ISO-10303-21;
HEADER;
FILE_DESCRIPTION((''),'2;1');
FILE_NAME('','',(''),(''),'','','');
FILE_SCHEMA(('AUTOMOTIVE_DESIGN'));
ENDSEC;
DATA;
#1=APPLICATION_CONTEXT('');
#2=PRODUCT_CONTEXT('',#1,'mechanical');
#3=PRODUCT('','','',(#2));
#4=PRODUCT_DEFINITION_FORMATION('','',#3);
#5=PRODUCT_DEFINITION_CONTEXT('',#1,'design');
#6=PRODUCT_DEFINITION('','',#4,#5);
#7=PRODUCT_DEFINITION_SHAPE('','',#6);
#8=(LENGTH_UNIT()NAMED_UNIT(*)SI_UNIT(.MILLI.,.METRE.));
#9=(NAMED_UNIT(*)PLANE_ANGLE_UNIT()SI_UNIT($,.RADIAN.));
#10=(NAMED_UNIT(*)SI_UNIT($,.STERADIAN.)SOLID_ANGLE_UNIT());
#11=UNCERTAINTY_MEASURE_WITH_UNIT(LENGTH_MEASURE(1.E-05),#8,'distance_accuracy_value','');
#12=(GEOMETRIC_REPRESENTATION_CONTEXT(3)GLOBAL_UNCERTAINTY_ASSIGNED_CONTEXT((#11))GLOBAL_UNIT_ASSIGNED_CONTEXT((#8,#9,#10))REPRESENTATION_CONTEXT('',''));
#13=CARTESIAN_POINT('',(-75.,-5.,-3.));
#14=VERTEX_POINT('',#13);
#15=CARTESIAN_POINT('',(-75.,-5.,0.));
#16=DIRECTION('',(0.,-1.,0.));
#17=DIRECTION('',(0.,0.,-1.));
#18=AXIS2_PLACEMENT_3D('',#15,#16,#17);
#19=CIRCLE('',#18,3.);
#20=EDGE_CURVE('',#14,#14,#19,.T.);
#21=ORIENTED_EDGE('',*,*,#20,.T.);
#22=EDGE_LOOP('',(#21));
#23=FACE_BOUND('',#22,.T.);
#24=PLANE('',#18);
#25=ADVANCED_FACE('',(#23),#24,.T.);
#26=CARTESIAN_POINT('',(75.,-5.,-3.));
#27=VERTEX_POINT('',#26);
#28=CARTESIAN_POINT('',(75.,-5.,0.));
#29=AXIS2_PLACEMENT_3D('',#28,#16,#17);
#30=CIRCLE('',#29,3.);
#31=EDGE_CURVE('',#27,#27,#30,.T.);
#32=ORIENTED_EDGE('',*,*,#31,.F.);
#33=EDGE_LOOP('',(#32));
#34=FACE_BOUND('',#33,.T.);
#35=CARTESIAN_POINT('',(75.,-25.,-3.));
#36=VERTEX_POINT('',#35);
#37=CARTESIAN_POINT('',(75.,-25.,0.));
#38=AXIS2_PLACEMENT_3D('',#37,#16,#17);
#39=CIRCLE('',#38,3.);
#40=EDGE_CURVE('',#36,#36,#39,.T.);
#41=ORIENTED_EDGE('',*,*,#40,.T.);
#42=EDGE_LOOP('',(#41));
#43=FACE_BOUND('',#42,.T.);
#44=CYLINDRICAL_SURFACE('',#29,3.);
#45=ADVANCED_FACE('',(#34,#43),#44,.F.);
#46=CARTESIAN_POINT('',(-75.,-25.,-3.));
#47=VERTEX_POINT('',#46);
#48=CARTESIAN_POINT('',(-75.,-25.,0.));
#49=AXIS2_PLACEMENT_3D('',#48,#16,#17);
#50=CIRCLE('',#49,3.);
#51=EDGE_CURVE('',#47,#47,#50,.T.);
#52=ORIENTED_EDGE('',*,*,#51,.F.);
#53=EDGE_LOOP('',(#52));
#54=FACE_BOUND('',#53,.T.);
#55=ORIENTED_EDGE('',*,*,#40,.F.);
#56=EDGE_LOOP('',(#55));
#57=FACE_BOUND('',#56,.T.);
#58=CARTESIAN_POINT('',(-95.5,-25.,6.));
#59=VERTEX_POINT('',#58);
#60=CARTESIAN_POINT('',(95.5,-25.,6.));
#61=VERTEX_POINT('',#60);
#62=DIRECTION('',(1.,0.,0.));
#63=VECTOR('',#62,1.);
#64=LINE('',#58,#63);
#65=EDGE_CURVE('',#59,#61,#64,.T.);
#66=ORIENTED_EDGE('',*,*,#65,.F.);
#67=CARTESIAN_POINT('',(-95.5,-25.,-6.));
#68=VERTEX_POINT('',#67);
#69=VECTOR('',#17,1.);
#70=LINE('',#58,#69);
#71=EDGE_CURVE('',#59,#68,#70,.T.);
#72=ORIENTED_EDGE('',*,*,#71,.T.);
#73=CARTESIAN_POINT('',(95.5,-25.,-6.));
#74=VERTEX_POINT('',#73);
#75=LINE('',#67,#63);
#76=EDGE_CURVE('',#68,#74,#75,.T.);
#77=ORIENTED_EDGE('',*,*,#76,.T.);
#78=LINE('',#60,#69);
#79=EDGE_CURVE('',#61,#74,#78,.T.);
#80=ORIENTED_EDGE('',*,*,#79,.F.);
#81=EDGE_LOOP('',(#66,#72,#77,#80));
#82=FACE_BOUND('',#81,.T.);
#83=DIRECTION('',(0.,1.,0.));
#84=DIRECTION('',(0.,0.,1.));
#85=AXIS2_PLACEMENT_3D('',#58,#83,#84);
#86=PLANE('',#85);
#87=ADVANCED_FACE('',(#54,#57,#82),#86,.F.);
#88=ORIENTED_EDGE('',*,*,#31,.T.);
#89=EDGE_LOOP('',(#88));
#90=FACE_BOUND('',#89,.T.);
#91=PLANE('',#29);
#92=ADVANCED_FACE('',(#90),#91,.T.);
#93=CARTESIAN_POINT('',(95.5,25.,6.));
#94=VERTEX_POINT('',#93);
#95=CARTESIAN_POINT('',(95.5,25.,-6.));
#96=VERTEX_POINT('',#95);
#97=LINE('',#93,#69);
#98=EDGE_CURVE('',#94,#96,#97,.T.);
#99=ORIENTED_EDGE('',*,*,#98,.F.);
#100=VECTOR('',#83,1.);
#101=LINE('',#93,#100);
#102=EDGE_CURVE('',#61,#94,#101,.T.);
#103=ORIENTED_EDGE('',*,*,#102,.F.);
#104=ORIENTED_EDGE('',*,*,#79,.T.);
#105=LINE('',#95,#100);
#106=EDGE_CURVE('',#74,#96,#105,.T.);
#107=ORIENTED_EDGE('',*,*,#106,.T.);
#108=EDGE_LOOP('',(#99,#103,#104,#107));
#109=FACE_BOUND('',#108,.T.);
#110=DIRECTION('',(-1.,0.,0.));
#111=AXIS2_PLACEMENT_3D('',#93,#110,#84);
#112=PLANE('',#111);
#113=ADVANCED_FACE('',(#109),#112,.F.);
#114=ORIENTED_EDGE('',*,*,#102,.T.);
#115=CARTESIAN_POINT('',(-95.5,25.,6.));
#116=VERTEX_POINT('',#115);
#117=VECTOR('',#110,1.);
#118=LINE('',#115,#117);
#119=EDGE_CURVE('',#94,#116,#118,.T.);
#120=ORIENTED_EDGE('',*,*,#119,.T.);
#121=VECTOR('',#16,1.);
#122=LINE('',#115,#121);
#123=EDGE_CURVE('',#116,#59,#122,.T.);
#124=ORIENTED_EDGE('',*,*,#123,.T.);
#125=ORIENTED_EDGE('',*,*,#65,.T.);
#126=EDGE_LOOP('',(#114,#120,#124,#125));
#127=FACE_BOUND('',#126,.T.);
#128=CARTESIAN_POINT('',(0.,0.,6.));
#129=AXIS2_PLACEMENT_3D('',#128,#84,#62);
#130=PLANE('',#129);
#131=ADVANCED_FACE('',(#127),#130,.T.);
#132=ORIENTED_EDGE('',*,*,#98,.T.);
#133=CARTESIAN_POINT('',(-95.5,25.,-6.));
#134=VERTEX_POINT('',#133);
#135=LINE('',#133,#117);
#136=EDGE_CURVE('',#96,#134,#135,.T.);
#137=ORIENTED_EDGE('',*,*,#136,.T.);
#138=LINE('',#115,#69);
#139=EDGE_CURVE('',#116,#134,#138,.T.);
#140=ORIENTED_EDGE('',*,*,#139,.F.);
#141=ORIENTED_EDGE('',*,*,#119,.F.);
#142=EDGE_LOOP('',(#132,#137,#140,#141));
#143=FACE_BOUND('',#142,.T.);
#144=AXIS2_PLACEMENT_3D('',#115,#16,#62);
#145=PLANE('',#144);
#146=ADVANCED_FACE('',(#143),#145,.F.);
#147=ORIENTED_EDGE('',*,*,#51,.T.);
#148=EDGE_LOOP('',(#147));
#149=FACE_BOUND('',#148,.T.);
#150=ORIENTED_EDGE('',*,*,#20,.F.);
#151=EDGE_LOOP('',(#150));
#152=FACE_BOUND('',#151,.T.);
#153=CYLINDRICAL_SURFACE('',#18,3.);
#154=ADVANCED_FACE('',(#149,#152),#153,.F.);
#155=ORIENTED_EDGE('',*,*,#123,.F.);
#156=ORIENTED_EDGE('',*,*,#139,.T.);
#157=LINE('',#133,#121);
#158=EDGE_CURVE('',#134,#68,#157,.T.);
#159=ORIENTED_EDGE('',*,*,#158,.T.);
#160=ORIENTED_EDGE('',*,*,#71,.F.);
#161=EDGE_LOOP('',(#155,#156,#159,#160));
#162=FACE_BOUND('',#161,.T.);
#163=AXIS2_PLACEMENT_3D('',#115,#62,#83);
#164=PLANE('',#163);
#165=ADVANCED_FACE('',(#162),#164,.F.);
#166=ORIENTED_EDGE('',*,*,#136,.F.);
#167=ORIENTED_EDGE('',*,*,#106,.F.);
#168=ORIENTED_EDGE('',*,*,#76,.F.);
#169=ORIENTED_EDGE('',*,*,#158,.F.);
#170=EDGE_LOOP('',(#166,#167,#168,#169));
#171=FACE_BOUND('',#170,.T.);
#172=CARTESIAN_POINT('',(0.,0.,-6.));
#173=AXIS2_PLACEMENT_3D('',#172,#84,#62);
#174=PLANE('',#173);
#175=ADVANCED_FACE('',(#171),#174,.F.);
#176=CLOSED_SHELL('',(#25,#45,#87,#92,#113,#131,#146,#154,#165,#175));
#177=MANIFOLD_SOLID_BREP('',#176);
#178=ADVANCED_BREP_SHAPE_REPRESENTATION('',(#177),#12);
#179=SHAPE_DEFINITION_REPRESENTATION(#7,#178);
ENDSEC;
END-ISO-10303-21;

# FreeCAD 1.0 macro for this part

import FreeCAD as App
import Part
import Sketcher
from FreeCAD import Vector

doc = App.newDocument("Part")
params = doc.addObject("Spreadsheet::Sheet", "Params")
for row, (alias, value) in enumerate([
    ("sketch1_width", "191 mm"),
    ("sketch1_height", "50 mm"),
    ("pad1_length", "12 mm"),
    ("sketch2_diameter", "6 mm"),
    ("pocket1_length", "20 mm"),
], start=1):
    params.set(f"A{row}", alias)
    params.set(f"B{row}", "=" + value)
    params.setAlias(f"B{row}", alias)

body = doc.addObject("PartDesign::Body", "Body")

sketch1 = body.newObject("Sketcher::SketchObject", "Sketch")
sketch1.AttachmentSupport = (doc.getObject("XY_Plane"), [""])
sketch1.MapMode = "FlatFace"
sketch1.addGeometry([
    Part.LineSegment(Vector(-96, 25, 0), Vector(-96, -25, 0)),
    Part.LineSegment(Vector(-96, -25, 0), Vector(96, -25, 0)),
    Part.LineSegment(Vector(96, -25, 0), Vector(96, 25, 0)),
    Part.LineSegment(Vector(96, 25, 0), Vector(-96, 25, 0)),
], False)
sketch1.addConstraint([
    Sketcher.Constraint("Coincident", 0, 2, 1, 1),
    Sketcher.Constraint("Coincident", 1, 2, 2, 1),
    Sketcher.Constraint("Coincident", 2, 2, 3, 1),
    Sketcher.Constraint("Coincident", 3, 2, 0, 1),
    Sketcher.Constraint("Vertical", 0),
    Sketcher.Constraint("Horizontal", 1),
    Sketcher.Constraint("Vertical", 2),
    Sketcher.Constraint("Horizontal", 3),
    Sketcher.Constraint("Symmetric", 0, 2, 2, 2, -1, 1),
    Sketcher.Constraint("DistanceX", 1, 1, 1, 2, 191.0),
    Sketcher.Constraint("DistanceY", 0, 2, 0, 1, 50.0),
])
sketch1.setExpression("Constraints[9]", "Params.sketch1_width")
sketch1.setExpression("Constraints[10]", "Params.sketch1_height")
pad1 = body.newObject("PartDesign::Pad", "Pad")
pad1.Profile = sketch1
pad1.setExpression("Length", "Params.pad1_length")
pad1.Midplane = True

sketch2 = body.newObject("Sketcher::SketchObject", "Sketch001")
sketch2.AttachmentSupport = (doc.getObject("XZ_Plane"), [""])
sketch2.MapMode = "FlatFace"
sketch2.AttachmentOffset = App.Placement(Vector(0, 0, 25), App.Rotation())
sketch2.addGeometry([
    Part.Circle(Vector(-75, 0, 0), Vector(0, 0, 1), 3),
    Part.Circle(Vector(75, 0, 0), Vector(0, 0, 1), 3),
], False)
sketch2.addConstraint([
    Sketcher.Constraint("Equal", 0, 1),
    Sketcher.Constraint("Symmetric", 0, 3, 1, 3, -1, 1),
    Sketcher.Constraint("PointOnObject", 0, 3, -1),
    Sketcher.Constraint("Diameter", 0, 6.0),
    Sketcher.Constraint("DistanceX", 0, 3, -1, 1, 75.0),
])
sketch2.setExpression("Constraints[3]", "Params.sketch2_diameter")
pocket1 = body.newObject("PartDesign::Pocket", "Pocket")
pocket1.Profile = sketch2
pocket1.setExpression("Length", "Params.pocket1_length")

doc.recompute()
